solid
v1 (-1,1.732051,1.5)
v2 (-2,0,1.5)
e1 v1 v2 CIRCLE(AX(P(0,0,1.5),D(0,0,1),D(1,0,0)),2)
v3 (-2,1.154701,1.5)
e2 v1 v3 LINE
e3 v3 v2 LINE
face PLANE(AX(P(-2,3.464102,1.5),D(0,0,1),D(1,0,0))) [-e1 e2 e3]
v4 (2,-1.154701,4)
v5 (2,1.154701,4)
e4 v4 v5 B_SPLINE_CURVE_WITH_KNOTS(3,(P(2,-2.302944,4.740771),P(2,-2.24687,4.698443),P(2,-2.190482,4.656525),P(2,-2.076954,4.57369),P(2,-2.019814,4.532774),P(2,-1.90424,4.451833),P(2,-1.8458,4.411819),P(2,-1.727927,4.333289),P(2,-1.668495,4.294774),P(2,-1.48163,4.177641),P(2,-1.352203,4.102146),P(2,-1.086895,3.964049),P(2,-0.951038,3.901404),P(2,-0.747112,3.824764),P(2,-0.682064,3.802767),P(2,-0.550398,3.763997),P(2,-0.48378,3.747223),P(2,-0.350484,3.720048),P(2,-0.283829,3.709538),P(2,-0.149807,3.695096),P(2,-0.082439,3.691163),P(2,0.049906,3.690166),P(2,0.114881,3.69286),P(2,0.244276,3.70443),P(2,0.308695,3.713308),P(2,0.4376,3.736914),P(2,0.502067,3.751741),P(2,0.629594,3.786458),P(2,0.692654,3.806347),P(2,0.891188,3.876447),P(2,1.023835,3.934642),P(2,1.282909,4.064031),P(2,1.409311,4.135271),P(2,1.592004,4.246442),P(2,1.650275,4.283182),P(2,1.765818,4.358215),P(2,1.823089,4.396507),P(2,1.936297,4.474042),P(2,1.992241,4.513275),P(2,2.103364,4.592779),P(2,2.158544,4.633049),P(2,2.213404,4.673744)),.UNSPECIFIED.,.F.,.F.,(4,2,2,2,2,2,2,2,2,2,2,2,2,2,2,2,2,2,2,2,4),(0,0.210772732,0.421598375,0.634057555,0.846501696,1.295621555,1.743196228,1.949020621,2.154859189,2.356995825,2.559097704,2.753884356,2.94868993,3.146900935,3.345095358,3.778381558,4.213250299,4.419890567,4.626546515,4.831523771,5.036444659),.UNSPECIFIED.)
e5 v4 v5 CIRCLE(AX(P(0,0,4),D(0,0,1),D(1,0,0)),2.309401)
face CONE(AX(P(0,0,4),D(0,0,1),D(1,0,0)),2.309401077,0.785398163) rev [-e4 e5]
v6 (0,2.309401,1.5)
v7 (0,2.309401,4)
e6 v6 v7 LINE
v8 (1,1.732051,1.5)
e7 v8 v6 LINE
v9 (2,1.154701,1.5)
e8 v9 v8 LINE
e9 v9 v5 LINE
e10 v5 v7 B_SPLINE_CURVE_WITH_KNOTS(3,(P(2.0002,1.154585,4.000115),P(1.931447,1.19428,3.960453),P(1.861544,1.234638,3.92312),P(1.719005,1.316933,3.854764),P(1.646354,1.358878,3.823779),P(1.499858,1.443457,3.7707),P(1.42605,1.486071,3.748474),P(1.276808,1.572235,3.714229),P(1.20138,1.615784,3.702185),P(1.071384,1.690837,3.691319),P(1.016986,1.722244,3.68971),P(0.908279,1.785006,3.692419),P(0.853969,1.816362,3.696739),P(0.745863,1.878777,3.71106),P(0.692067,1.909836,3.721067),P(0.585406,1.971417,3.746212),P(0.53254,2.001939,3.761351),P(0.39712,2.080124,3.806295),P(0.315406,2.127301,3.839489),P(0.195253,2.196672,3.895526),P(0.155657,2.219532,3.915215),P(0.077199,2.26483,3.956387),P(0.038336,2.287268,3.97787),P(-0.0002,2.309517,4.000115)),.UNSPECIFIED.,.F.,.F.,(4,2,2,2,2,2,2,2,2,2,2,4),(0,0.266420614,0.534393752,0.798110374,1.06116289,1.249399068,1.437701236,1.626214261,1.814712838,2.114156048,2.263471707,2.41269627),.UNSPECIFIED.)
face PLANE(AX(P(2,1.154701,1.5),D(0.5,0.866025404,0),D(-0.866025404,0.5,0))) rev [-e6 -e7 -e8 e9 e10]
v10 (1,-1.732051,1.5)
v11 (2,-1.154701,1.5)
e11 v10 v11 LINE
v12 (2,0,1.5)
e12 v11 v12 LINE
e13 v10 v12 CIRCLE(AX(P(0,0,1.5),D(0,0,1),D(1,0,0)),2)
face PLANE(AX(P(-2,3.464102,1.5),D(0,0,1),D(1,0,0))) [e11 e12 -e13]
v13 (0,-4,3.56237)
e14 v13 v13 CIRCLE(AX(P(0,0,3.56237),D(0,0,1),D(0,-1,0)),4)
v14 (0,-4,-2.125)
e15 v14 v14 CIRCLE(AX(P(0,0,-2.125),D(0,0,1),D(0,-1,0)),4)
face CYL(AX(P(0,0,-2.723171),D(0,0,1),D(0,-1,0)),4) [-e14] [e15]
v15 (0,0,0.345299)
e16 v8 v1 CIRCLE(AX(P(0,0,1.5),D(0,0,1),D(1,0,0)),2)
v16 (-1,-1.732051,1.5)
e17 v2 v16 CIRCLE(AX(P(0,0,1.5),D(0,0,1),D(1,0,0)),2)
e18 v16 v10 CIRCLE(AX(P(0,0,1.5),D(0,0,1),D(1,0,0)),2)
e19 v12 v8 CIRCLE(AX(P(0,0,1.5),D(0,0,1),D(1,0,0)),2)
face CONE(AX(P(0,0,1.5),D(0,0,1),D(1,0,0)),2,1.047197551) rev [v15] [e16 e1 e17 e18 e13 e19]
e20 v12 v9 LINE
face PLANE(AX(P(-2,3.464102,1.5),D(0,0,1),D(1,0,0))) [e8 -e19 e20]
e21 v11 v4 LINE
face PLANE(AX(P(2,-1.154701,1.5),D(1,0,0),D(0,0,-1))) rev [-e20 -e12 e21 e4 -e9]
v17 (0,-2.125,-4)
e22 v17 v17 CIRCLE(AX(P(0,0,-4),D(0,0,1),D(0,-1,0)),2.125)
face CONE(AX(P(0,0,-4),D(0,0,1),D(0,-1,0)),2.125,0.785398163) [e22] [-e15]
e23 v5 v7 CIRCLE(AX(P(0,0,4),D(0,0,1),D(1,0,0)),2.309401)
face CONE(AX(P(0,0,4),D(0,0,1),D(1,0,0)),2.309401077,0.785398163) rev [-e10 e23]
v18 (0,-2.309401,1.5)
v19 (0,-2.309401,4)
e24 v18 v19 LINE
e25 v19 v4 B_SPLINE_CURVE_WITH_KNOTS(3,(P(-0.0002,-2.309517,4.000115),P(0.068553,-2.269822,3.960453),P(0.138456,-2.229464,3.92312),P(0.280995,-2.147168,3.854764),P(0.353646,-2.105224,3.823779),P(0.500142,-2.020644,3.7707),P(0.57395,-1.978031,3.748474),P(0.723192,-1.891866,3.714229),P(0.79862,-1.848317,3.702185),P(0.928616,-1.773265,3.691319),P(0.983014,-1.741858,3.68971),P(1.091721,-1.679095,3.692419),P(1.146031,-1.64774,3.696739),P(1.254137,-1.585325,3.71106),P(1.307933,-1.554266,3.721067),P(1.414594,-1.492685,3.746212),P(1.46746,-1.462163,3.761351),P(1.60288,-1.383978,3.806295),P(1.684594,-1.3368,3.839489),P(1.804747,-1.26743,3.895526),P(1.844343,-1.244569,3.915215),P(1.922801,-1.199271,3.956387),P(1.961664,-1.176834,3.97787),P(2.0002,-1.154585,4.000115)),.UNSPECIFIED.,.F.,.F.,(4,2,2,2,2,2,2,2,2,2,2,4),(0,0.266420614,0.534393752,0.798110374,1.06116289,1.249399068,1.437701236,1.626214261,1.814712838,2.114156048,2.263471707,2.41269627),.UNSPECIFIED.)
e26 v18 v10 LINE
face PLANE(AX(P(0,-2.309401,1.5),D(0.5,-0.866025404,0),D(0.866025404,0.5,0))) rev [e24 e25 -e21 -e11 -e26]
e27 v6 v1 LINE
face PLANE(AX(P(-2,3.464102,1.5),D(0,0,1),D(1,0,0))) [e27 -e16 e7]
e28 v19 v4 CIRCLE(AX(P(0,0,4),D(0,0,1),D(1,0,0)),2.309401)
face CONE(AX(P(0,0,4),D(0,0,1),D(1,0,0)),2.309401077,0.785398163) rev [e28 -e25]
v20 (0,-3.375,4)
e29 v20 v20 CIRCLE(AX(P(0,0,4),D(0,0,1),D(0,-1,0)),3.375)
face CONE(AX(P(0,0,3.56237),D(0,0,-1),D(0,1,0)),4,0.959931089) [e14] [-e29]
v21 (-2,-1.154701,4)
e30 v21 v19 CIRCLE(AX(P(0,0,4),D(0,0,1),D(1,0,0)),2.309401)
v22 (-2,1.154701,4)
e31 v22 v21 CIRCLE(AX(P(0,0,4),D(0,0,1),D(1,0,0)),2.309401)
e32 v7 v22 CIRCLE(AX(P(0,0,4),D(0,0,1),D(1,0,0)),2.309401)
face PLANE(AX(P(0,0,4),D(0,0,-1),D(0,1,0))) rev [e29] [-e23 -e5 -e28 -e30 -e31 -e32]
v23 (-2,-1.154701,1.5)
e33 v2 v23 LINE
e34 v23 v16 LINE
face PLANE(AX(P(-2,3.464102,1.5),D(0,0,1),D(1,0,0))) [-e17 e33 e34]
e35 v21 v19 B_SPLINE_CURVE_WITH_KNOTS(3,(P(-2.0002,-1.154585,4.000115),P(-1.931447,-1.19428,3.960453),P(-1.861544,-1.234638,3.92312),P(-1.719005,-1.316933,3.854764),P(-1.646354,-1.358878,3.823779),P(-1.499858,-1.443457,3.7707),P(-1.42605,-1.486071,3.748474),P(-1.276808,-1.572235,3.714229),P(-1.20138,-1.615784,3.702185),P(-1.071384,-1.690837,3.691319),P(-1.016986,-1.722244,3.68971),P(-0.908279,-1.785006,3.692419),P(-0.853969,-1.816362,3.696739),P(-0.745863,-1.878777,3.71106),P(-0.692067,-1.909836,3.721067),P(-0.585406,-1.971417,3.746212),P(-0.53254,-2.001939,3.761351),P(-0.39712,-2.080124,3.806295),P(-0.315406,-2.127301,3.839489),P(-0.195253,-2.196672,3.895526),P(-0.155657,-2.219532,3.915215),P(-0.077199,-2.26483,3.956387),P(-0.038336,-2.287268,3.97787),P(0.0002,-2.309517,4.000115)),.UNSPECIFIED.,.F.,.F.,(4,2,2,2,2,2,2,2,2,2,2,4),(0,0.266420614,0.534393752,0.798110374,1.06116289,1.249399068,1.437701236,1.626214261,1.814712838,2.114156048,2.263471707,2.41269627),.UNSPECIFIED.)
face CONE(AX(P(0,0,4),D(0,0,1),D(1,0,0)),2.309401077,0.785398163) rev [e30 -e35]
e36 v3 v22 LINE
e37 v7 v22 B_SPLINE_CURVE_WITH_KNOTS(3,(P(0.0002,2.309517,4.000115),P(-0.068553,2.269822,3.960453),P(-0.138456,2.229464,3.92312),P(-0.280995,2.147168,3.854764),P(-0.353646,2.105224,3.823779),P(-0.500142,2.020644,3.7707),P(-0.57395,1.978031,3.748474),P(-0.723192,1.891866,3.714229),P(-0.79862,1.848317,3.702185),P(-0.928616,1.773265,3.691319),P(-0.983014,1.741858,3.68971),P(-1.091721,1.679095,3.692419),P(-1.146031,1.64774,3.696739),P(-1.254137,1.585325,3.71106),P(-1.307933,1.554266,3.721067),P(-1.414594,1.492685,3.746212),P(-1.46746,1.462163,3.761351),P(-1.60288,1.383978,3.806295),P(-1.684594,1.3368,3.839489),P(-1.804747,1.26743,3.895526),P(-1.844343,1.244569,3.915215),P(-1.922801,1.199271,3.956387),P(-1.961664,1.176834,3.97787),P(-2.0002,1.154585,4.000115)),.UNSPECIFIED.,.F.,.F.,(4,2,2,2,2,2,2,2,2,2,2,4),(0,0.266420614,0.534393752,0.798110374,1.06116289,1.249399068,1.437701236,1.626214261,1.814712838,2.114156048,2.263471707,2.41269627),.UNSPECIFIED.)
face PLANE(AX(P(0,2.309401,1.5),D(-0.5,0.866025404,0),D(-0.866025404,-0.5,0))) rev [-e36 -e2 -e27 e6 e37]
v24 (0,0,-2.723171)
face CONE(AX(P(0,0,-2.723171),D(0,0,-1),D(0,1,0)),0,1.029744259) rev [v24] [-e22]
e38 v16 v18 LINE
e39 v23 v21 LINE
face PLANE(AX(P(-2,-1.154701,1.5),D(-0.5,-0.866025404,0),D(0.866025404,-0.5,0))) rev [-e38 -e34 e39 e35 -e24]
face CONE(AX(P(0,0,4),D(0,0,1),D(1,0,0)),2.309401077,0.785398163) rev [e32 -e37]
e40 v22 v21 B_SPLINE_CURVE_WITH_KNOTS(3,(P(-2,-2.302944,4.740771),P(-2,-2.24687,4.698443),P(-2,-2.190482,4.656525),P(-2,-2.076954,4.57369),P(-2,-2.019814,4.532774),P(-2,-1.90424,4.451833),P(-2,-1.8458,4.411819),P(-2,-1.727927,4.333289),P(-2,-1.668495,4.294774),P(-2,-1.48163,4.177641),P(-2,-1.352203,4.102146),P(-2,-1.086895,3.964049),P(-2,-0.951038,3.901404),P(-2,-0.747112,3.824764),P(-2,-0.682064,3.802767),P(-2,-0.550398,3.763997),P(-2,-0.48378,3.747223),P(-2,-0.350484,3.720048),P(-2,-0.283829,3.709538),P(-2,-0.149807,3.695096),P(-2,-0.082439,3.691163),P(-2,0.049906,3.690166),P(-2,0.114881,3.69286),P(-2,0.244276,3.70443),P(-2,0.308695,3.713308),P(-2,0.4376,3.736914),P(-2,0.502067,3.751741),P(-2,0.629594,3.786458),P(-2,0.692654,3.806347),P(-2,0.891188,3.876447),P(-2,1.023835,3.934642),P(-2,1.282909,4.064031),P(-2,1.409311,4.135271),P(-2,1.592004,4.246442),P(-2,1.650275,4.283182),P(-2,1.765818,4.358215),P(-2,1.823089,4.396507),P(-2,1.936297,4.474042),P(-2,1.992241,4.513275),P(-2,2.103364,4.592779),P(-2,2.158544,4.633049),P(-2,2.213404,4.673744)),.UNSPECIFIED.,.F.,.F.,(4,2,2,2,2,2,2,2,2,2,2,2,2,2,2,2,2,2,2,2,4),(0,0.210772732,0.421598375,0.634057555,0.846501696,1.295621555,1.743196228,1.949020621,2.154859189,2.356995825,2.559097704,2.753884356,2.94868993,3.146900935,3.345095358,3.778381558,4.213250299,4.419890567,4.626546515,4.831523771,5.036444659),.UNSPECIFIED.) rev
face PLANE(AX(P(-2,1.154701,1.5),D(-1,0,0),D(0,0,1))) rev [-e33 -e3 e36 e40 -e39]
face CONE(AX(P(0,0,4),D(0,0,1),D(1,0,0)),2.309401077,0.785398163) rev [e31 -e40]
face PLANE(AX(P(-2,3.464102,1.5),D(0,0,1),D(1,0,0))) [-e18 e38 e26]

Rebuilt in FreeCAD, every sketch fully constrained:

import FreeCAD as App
import Part
import Sketcher
from FreeCAD import Vector
Q = App.Units.Quantity


def add_polygon(sketch, points):
    """Adds a closed chain of lines whose ends are joined by coincident constraints."""
    first, n = sketch.GeometryCount, len(points)
    for a, b in zip(points, points[1:] + points[:1]):
        sketch.addGeometry(Part.LineSegment(App.Vector(*a, 0), App.Vector(*b, 0)), False)
    for i in range(n):
        sketch.addConstraint(Sketcher.Constraint("Coincident", first + i, 2, first + (i + 1) % n, 1))

doc = App.newDocument("Part")
body = doc.addObject("PartDesign::Body", "Body")

sketch1 = body.newObject("Sketcher::SketchObject", "Sketch")
sketch1.AttachmentSupport = (doc.getObject("YZ_Plane"), [""])
sketch1.MapMode = "FlatFace"
add_polygon(sketch1, [(3.375, 4), (0, 4), (0, -2.723171), (2.125, -4), (4, -2.125), (4, 3.56237)])
sketch1.addConstraint([
    Sketcher.Constraint("Horizontal", 0),
    Sketcher.Constraint("Vertical", 1),
    Sketcher.Constraint("Vertical", 4),
    Sketcher.Constraint("PointOnObject", 0, 2, -2),
    Sketcher.Constraint("Angle", 2, Q("-31 deg")),
    Sketcher.Constraint("Angle", 3, Q("45 deg")),
    Sketcher.Constraint("Angle", 5, Q("145 deg")),
    Sketcher.Constraint("DistanceY", -1, 1, 0, 2, Q("4 mm")),
    Sketcher.Constraint("DistanceY", 2, 2, -1, 1, Q("4 mm")),
    Sketcher.Constraint("DistanceX", -1, 1, 3, 2, Q("4 mm")),
    Sketcher.Constraint("DistanceX", 0, 2, 0, 1, Q("3.375 mm")),
    Sketcher.Constraint("DistanceX", 2, 2, 5, 2, Q("1.25 mm")),
])
revolution = body.newObject("PartDesign::Revolution", "Revolution")
revolution.Profile = sketch1
revolution.ReferenceAxis = (sketch1, ["V_Axis"])
revolution.Angle = 360

sketch2 = body.newObject("Sketcher::SketchObject", "Sketch001")
sketch2.AttachmentSupport = (doc.getObject("XY_Plane"), [""])
sketch2.MapMode = "FlatFace"
sketch2.AttachmentOffset = App.Placement(Vector(0, 0, 4), App.Rotation())
add_polygon(sketch2, [(0, 2.309401), (-2, 1.154701), (-2, -1.154701), (0, -2.309401), (2, -1.154701), (2, 1.154701)])
sketch2.addConstraint([
    Sketcher.Constraint("Vertical", 1),
    Sketcher.Constraint("Vertical", 4),
    Sketcher.Constraint("Symmetric", 0, 2, 3, 2, -1, 1),
    Sketcher.Constraint("Symmetric", 2, 2, 5, 2, -1, 1),
    Sketcher.Constraint("PointOnObject", 2, 2, -2),
    Sketcher.Constraint("Parallel", 2, 5),
    Sketcher.Constraint("Horizontal", 1, 2, 3, 2),
    Sketcher.Constraint("Angle", 0, Q("-150 deg")),
    Sketcher.Constraint("DistanceX", 0, 2, -1, 1, Q("2 mm")),
    Sketcher.Constraint("DistanceY", 1, 2, 1, 1, Q("2.309401 mm")),
])
pocket1 = body.newObject("PartDesign::Pocket", "Pocket")
pocket1.Profile = sketch2
pocket1.Length = 2.5

sketch3 = body.newObject("Sketcher::SketchObject", "Sketch002")
sketch3.AttachmentSupport = (doc.getObject("YZ_Plane"), [""])
sketch3.MapMode = "FlatFace"
add_polygon(sketch3, [(0, 4), (-2.309401, 4), (0, 1.690599)])
sketch3.addConstraint([
    Sketcher.Constraint("Horizontal", 0),
    Sketcher.Constraint("Vertical", 2),
    Sketcher.Constraint("PointOnObject", 1, 2, -2),
    Sketcher.Constraint("Equal", 0, 2),
    Sketcher.Constraint("DistanceY", -1, 1, 0, 2, Q("4 mm")),
    Sketcher.Constraint("DistanceX", 0, 2, 0, 1, Q("2.309401 mm")),
])
groove = body.newObject("PartDesign::Groove", "Groove")
groove.Profile = sketch3
groove.ReferenceAxis = (sketch3, ["V_Axis"])
groove.Angle = 360

sketch4 = body.newObject("Sketcher::SketchObject", "Sketch003")
sketch4.AttachmentSupport = (doc.getObject("YZ_Plane"), [""])
sketch4.MapMode = "FlatFace"
add_polygon(sketch4, [(0, 1.5), (-2, 1.5), (0, 0.345299)])
sketch4.addConstraint([
    Sketcher.Constraint("Horizontal", 0),
    Sketcher.Constraint("Vertical", 2),
    Sketcher.Constraint("PointOnObject", 1, 2, -2),
    Sketcher.Constraint("DistanceX", 0, 2, 0, 1, Q("2 mm")),
    Sketcher.Constraint("Angle", 1, Q("-30 deg")),
    Sketcher.Constraint("DistanceY", -1, 1, 0, 2, Q("1.5 mm")),
])
groove2 = body.newObject("PartDesign::Groove", "Groove001")
groove2.Profile = sketch4
groove2.ReferenceAxis = (sketch4, ["V_Axis"])
groove2.Angle = 360

doc.recompute()
